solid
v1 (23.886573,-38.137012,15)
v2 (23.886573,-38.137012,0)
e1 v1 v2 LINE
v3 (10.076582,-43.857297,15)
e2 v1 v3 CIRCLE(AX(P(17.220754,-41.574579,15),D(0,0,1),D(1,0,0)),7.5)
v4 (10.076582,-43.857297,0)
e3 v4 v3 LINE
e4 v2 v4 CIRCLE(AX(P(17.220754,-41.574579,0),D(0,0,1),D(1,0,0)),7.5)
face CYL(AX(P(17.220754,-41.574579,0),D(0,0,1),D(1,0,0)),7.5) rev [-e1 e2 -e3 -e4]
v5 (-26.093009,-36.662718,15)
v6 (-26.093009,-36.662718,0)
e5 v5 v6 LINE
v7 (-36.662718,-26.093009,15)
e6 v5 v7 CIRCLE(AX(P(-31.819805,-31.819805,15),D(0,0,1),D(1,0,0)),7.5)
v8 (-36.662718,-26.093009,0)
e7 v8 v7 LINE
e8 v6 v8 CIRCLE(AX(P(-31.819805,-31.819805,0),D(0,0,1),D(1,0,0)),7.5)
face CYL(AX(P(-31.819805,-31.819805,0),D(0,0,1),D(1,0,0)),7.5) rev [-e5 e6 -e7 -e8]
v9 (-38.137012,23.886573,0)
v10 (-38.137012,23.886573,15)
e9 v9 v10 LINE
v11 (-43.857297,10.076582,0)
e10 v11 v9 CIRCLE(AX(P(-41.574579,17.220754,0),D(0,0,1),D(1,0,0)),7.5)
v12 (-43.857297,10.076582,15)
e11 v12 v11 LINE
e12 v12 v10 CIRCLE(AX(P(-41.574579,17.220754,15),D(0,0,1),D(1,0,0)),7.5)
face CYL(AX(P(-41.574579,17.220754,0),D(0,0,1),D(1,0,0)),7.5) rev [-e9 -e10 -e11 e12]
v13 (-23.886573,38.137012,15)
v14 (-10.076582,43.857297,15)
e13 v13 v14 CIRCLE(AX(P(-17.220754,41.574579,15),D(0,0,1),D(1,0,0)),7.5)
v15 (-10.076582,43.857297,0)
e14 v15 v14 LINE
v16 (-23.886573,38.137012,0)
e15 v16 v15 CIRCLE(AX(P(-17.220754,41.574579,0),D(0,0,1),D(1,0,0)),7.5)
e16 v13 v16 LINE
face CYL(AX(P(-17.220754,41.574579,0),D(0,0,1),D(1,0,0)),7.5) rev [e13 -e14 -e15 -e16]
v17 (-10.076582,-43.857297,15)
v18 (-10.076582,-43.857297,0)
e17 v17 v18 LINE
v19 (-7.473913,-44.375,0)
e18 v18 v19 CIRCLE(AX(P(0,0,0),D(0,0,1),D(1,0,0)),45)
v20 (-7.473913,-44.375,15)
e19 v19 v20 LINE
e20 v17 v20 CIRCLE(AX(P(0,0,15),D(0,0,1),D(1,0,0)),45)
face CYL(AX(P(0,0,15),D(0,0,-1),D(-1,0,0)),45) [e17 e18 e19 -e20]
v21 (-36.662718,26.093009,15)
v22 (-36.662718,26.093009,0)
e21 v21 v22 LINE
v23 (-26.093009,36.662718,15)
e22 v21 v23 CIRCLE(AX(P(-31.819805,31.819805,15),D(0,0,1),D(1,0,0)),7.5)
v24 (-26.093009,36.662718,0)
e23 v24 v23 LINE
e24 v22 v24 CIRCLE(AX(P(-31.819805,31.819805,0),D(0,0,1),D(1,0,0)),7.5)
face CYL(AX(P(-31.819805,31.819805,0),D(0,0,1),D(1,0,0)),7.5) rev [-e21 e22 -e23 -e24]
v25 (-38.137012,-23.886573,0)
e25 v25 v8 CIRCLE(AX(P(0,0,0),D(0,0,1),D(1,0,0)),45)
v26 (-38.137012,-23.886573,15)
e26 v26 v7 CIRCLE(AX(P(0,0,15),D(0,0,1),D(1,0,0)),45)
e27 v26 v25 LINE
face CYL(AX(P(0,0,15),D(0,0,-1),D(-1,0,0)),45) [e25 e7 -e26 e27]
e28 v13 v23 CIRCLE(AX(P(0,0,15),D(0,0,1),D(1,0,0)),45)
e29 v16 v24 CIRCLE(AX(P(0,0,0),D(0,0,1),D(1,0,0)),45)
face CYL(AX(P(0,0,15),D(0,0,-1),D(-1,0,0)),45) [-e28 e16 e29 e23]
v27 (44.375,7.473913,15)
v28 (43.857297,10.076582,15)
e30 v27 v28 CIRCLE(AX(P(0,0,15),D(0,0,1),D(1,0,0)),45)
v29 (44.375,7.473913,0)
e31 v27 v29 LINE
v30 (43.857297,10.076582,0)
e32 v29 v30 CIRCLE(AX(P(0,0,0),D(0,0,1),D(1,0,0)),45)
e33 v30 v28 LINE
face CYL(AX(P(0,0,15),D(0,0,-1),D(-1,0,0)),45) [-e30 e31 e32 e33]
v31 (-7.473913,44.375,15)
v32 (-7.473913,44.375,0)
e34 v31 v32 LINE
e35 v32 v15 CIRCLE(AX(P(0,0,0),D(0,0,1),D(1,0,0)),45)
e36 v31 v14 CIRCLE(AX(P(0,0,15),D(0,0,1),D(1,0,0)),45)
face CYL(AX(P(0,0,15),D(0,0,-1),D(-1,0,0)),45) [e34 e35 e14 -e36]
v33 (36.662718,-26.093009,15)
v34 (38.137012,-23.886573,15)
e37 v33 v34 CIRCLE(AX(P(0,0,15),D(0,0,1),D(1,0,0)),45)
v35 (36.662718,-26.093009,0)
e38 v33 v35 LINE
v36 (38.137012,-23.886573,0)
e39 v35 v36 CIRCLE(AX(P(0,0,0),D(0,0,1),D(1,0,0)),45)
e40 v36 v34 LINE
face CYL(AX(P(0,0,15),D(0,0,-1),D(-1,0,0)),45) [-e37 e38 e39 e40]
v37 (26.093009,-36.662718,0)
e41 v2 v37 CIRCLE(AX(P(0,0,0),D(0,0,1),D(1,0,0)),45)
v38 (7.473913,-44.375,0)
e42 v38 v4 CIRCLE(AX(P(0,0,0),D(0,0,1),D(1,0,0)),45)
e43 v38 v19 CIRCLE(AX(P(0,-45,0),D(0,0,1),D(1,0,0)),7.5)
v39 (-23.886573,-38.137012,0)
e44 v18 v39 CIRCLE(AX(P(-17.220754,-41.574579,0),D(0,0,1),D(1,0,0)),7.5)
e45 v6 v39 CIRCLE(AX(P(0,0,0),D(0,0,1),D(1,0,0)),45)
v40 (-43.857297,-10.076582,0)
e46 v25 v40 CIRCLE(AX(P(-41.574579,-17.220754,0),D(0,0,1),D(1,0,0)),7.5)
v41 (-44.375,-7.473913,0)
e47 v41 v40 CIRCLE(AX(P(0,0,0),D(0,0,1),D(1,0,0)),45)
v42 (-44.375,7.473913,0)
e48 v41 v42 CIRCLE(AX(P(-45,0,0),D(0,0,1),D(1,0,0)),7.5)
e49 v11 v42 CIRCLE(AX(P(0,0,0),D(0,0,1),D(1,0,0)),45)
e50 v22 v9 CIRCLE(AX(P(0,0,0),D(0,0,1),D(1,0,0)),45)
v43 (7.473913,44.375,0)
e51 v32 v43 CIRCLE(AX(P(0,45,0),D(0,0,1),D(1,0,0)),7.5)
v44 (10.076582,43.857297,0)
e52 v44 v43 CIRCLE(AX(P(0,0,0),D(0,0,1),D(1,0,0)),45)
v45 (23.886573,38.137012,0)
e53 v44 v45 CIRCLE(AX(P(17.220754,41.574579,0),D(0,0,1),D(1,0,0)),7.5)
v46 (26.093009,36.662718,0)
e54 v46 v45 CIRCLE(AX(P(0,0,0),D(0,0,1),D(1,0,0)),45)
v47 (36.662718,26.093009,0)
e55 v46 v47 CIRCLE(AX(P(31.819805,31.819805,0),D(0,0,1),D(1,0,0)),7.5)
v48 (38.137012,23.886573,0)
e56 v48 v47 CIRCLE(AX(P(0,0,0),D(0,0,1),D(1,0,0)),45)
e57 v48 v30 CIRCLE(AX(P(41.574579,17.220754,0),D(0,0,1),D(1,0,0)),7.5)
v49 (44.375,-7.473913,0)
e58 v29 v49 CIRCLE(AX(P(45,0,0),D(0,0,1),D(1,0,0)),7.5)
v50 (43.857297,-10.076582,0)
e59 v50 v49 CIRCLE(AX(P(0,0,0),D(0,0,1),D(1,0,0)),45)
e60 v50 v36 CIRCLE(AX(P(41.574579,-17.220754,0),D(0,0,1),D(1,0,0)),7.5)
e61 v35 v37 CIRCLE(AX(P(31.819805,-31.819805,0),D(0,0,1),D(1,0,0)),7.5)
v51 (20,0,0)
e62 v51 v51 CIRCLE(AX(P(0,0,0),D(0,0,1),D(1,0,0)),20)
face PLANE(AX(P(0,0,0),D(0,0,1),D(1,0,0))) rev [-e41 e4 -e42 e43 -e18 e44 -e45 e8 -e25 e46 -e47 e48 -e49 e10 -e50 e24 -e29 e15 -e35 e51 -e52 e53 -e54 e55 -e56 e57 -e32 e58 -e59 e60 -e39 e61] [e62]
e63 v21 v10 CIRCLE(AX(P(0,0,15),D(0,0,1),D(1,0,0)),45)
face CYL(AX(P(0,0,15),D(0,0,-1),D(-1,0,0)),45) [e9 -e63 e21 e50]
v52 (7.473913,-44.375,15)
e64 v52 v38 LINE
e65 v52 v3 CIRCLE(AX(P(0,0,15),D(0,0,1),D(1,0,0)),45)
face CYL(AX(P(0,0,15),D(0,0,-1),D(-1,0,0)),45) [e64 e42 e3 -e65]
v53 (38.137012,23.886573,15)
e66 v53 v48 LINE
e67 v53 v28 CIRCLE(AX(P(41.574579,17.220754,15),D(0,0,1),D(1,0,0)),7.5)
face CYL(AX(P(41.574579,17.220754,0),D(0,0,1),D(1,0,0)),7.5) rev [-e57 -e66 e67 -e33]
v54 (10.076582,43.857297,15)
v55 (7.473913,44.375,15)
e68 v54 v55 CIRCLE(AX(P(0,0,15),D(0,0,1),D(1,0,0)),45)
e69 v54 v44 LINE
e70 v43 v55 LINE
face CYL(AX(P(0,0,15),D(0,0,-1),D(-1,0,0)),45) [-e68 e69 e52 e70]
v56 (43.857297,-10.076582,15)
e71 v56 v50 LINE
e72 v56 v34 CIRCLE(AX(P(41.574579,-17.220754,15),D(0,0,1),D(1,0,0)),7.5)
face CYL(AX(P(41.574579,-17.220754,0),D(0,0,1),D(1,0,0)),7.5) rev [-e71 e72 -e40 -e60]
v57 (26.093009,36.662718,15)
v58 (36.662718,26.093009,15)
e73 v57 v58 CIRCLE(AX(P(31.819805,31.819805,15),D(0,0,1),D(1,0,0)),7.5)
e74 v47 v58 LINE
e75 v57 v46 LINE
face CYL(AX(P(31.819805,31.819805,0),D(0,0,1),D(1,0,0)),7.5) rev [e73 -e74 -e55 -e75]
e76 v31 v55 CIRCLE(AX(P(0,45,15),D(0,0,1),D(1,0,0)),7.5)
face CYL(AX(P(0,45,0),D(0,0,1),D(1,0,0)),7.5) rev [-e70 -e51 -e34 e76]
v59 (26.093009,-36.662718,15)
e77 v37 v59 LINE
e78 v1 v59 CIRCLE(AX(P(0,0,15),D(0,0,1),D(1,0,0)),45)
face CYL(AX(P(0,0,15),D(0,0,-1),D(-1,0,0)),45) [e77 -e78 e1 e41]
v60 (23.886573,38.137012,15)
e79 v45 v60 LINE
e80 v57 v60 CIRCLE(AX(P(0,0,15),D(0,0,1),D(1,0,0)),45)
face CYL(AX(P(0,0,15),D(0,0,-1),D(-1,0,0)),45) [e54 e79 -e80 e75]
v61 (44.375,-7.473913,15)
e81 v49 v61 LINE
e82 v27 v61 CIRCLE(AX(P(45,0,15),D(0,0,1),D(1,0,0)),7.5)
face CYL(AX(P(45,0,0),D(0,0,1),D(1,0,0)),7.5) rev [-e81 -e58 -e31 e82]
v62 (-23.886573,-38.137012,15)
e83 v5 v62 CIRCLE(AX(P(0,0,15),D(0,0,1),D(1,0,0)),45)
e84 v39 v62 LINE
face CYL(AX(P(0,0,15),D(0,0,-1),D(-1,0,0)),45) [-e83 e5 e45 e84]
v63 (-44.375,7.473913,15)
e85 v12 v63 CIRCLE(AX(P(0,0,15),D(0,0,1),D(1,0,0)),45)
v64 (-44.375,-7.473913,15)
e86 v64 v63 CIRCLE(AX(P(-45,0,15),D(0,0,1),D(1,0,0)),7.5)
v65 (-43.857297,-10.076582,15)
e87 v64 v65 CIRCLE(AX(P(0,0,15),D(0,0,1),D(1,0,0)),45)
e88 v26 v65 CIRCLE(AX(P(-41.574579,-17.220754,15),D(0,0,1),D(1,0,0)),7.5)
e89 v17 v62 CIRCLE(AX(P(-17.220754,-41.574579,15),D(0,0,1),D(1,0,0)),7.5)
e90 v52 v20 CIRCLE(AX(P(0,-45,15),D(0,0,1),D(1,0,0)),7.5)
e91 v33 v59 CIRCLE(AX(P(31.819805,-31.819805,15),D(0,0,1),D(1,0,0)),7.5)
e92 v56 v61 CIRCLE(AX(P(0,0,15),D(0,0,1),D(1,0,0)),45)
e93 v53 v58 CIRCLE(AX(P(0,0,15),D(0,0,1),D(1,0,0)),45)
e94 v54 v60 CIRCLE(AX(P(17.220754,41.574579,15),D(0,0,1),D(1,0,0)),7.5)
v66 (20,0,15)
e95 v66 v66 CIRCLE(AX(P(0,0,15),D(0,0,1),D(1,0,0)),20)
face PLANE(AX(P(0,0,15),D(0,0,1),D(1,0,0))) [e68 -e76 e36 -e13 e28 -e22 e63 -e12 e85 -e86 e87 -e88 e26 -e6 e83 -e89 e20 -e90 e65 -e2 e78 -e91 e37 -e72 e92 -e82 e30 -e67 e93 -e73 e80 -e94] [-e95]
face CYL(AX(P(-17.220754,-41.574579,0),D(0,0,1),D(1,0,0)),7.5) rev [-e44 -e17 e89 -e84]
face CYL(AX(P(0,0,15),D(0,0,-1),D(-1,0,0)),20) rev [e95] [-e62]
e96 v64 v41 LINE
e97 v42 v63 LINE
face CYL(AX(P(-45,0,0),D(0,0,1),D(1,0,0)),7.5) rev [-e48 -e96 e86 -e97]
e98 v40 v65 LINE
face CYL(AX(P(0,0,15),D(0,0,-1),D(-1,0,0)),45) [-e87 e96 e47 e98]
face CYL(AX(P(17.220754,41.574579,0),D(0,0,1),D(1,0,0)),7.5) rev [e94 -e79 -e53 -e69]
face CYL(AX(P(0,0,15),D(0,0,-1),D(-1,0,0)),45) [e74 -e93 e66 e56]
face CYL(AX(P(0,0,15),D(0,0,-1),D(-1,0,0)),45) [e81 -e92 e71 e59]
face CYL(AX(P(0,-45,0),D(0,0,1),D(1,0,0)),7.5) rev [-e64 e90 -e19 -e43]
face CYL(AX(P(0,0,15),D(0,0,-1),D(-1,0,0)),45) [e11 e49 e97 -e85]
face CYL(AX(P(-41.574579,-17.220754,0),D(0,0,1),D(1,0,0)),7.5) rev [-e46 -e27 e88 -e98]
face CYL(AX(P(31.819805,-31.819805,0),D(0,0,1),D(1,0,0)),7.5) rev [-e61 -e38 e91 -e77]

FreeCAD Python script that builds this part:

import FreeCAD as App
import Part
import Sketcher
Q = App.Units.Quantity

doc = App.newDocument("Part")
body = doc.addObject("PartDesign::Body", "Body")

# Sketch on XY plane
sketch1 = body.newObject("Sketcher::SketchObject", "Sketch")
sketch1.AttachmentSupport = (doc.getObject("XY_Plane"), [""])
sketch1.MapMode = "FlatFace"
sketch1.addGeometry([
    Part.Circle(App.Vector(0, 0, 0), App.Vector(0, 0, 1), 45),
    Part.Circle(App.Vector(0, 0, 0), App.Vector(0, 0, 1), 20),
], False)
sketch1.addConstraint([
    Sketcher.Constraint("Coincident", 0, 3, -1, 1),
    Sketcher.Constraint("Coincident", 1, 3, -1, 1),
    Sketcher.Constraint("Diameter", 0, Q("90 mm")),
    Sketcher.Constraint("Diameter", 1, Q("40 mm")),
])
pad1 = body.newObject("PartDesign::Pad", "Pad")
pad1.Profile = sketch1
pad1.Length = 15

# Sketch on XY plane
sketch2 = body.newObject("Sketcher::SketchObject", "Sketch001")
sketch2.AttachmentSupport = (doc.getObject("XY_Plane"), [""])
sketch2.MapMode = "FlatFace"
sketch2.AttachmentOffset = App.Placement(App.Vector(0, 0, 15), App.Rotation())
sketch2.addGeometry([
    Part.Circle(App.Vector(0, 45, 0), App.Vector(0, 0, 1), 8),  # 0
    Part.Circle(App.Vector(17, 42, 0), App.Vector(0, 0, 1), 8),  # 1
    Part.Circle(App.Vector(32, 32, 0), App.Vector(0, 0, 1), 8),  # 2
    Part.Circle(App.Vector(42, 17, 0), App.Vector(0, 0, 1), 8),  # 3
    Part.Circle(App.Vector(45, 0, 0), App.Vector(0, 0, 1), 8),  # 4
    Part.Circle(App.Vector(42, -17, 0), App.Vector(0, 0, 1), 8),  # 5
    Part.Circle(App.Vector(32, -32, 0), App.Vector(0, 0, 1), 8),  # 6
    Part.Circle(App.Vector(17, -42, 0), App.Vector(0, 0, 1), 8),  # 7
    Part.Circle(App.Vector(0, -45, 0), App.Vector(0, 0, 1), 8),  # 8
    Part.Circle(App.Vector(-17, -42, 0), App.Vector(0, 0, 1), 8),  # 9
    Part.Circle(App.Vector(-32, -32, 0), App.Vector(0, 0, 1), 8),  # 10
    Part.Circle(App.Vector(-42, -17, 0), App.Vector(0, 0, 1), 8),  # 11
    Part.Circle(App.Vector(-45, 0, 0), App.Vector(0, 0, 1), 8),  # 12
    Part.Circle(App.Vector(-42, 17, 0), App.Vector(0, 0, 1), 8),  # 13
    Part.Circle(App.Vector(-32, 32, 0), App.Vector(0, 0, 1), 8),  # 14
    Part.Circle(App.Vector(-17, 42, 0), App.Vector(0, 0, 1), 8),  # 15
], False)
sketch2.addConstraint([
    Sketcher.Constraint("Equal", 0, 1),
    Sketcher.Constraint("Equal", 1, 2),
    Sketcher.Constraint("Equal", 2, 3),
    Sketcher.Constraint("Equal", 3, 4),
    Sketcher.Constraint("Equal", 4, 5),
    Sketcher.Constraint("Equal", 5, 6),
    Sketcher.Constraint("Equal", 6, 7),
    Sketcher.Constraint("Equal", 7, 8),
    Sketcher.Constraint("Equal", 8, 9),
    Sketcher.Constraint("Equal", 9, 10),
    Sketcher.Constraint("Equal", 10, 11),
    Sketcher.Constraint("Equal", 11, 12),
    Sketcher.Constraint("Equal", 12, 13),
    Sketcher.Constraint("Equal", 13, 14),
    Sketcher.Constraint("Equal", 14, 15),
    Sketcher.Constraint("Symmetric", 0, 3, 8, 3, -1, 1),
    Sketcher.Constraint("Symmetric", 1, 3, 9, 3, -1, 1),
    Sketcher.Constraint("Symmetric", 2, 3, 10, 3, -1, 1),
    Sketcher.Constraint("Symmetric", 3, 3, 11, 3, -1, 1),
    Sketcher.Constraint("Symmetric", 4, 3, 12, 3, -1, 1),
    Sketcher.Constraint("Symmetric", 5, 3, 13, 3, -1, 1),
    Sketcher.Constraint("Symmetric", 6, 3, 14, 3, -1, 1),
    Sketcher.Constraint("Symmetric", 7, 3, 15, 3, -1, 1),
    Sketcher.Constraint("Symmetric", 7, 3, 9, 3, -2),
    Sketcher.Constraint("Symmetric", 6, 3, 10, 3, -2),
    Sketcher.Constraint("Symmetric", 5, 3, 11, 3, -2),
    Sketcher.Constraint("PointOnObject", 0, 3, -2),
    Sketcher.Constraint("PointOnObject", 4, 3, -1),
    Sketcher.Constraint("Diameter", 0, Q("15 mm")),
    Sketcher.Constraint("DistanceY", -1, 1, 0, 3, Q("45 mm")),
    Sketcher.Constraint("DistanceX", -1, 1, 4, 3, Q("45 mm")),
    Sketcher.Constraint("DistanceY", -1, 1, 1, 3, Q("41.574579 mm")),
    Sketcher.Constraint("DistanceX", -1, 1, 3, 3, Q("41.574579 mm")),
    Sketcher.Constraint("DistanceX", 1, 3, 2, 3, Q("14.599051 mm")),
    Sketcher.Constraint("DistanceY", 3, 3, 2, 3, Q("14.599051 mm")),
    Sketcher.Constraint("DistanceY", 5, 3, 3, 3, Q("34.441509 mm")),
    Sketcher.Constraint("DistanceX", 9, 3, 7, 3, Q("34.441509 mm")),
])
pocket1 = body.newObject("PartDesign::Pocket", "Pocket")
pocket1.Profile = sketch2
pocket1.Length = 15

doc.recompute()
